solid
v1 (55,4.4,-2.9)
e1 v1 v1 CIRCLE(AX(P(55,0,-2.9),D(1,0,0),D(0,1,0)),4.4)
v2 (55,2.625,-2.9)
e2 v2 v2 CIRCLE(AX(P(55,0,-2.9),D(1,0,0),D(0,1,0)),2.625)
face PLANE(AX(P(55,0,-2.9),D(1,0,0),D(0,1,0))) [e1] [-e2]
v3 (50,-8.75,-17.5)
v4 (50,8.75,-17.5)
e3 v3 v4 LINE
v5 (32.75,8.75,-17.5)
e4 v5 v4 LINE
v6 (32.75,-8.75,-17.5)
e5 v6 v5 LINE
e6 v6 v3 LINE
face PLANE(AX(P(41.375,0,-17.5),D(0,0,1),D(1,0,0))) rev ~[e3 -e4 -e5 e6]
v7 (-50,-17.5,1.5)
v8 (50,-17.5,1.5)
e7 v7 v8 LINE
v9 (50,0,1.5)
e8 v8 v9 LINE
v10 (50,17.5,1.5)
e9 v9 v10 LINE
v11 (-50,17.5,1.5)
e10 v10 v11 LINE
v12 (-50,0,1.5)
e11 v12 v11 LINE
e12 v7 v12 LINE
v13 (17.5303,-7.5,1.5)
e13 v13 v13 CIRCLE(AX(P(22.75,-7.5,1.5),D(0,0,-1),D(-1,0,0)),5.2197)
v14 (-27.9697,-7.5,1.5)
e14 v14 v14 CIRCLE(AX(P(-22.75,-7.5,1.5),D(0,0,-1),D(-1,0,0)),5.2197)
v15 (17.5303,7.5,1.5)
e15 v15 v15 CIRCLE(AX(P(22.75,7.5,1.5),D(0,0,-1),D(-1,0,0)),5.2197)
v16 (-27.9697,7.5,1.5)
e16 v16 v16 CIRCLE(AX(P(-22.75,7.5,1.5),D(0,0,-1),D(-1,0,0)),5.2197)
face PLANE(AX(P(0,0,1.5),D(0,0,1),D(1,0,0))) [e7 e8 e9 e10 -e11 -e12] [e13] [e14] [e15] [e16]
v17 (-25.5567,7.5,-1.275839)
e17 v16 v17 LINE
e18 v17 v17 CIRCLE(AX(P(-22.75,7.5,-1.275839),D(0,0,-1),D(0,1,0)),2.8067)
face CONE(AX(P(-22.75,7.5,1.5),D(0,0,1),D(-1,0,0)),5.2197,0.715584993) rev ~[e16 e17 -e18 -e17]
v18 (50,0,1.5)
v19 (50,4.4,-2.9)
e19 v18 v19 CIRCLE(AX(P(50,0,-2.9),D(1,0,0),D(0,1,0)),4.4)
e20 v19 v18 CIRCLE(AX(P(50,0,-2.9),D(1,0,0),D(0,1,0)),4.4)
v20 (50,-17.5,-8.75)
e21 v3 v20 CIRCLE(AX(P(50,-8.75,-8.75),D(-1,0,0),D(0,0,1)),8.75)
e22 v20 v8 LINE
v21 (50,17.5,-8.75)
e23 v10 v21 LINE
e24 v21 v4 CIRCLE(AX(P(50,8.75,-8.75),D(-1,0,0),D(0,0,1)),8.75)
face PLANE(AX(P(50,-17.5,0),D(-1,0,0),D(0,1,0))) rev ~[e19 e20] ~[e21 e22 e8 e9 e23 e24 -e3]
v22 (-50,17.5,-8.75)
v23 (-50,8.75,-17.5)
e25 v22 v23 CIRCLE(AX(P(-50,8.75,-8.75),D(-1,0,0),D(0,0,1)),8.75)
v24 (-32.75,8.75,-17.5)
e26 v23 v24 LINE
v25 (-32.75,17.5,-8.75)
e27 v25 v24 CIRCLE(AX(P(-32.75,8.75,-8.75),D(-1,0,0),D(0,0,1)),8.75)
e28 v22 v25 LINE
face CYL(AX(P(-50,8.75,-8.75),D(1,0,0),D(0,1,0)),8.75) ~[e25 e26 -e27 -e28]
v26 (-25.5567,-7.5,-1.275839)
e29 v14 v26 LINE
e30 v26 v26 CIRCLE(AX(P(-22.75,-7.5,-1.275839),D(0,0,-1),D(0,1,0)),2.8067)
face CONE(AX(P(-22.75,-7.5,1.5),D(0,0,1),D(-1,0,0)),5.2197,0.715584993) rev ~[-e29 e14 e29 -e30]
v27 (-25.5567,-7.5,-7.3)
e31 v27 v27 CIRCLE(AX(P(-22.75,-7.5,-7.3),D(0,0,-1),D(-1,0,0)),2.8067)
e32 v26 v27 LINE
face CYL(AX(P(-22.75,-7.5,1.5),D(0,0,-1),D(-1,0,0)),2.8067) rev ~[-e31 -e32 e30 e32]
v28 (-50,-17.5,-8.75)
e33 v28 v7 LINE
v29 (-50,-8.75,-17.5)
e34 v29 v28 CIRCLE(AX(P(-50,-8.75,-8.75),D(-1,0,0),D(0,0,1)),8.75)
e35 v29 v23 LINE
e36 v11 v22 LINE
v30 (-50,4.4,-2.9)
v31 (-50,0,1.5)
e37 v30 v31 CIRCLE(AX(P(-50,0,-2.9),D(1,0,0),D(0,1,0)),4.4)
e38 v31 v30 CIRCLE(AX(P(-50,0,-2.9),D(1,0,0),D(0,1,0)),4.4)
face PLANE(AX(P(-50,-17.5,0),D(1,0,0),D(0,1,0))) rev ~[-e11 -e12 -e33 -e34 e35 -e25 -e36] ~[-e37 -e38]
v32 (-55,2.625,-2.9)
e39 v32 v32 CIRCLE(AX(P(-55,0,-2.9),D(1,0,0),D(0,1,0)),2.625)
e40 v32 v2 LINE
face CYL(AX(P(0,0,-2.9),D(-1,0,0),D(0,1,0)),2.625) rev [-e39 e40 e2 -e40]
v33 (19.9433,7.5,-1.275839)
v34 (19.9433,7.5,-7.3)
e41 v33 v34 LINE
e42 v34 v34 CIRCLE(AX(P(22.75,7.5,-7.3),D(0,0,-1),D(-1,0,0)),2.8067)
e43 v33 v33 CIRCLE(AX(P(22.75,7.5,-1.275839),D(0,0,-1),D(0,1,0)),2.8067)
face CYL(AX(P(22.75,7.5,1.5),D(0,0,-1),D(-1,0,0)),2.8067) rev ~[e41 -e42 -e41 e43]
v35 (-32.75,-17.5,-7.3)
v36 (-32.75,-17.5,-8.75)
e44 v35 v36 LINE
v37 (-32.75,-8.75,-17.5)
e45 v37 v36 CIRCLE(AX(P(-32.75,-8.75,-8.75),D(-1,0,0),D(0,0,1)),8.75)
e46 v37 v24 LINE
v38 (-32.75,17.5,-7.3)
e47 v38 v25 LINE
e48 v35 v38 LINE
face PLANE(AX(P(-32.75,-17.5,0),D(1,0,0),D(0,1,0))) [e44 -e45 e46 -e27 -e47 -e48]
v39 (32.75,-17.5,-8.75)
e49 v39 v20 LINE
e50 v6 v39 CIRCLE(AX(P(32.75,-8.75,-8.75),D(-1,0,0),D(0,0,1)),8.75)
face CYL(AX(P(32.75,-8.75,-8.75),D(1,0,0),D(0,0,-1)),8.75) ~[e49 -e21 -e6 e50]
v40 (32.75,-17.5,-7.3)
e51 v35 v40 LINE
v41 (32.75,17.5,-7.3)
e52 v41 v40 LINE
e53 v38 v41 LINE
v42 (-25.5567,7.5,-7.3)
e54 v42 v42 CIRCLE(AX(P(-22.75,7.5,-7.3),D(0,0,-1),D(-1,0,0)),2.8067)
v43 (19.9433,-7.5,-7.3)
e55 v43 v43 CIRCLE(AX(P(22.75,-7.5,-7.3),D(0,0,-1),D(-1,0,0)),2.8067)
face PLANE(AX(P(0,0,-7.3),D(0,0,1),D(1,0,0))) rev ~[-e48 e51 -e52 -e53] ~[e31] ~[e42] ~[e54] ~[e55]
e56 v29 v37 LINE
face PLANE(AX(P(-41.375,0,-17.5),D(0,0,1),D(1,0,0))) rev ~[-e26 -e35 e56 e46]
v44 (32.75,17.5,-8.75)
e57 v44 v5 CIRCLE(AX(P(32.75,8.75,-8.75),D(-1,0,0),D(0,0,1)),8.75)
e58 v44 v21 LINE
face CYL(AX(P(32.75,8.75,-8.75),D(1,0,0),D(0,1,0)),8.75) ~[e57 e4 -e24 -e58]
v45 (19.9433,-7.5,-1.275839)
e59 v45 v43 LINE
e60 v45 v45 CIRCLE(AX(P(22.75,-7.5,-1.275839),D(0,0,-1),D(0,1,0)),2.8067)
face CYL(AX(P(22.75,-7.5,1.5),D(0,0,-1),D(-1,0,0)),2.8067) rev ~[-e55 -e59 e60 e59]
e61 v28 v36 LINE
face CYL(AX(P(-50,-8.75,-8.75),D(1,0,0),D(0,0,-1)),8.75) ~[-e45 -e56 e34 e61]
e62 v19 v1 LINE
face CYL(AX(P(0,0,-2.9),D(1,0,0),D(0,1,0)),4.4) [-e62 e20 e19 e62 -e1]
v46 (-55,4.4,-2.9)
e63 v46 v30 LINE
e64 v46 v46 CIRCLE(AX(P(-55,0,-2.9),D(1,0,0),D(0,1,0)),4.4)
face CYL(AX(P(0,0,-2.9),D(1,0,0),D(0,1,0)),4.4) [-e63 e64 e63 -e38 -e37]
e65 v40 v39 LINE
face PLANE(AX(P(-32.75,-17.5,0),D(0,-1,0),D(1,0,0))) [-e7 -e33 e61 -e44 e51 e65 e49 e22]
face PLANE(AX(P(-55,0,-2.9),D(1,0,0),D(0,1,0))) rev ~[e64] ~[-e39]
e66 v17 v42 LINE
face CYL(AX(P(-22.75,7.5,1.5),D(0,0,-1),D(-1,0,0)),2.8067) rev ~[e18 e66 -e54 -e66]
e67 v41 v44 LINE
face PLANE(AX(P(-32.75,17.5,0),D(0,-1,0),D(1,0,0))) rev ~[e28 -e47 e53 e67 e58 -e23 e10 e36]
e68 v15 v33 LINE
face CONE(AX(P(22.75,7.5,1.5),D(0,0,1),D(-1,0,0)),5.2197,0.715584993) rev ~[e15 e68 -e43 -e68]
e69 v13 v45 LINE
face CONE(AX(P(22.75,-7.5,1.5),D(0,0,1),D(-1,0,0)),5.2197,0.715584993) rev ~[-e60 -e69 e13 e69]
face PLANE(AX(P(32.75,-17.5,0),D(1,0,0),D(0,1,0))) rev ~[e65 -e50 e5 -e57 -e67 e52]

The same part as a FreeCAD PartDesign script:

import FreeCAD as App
import Part
import Sketcher
from FreeCAD import Vector
Q = App.Units.Quantity


def edges_at(feature, points):
    """Names of the edges that pass closest to the given points."""
    edges = feature.Shape.Edges
    near = lambda p: min(range(len(edges)), key=lambda i: edges[i].distToShape(Part.Vertex(*p))[0])
    return sorted({f"Edge{near(p) + 1}" for p in points})

doc = App.newDocument("Part")
params = doc.addObject("Spreadsheet::Sheet", "Params")
for row, (alias, value) in enumerate([
    ("sketch1_width", "100 mm"),
    ("sketch1_height", "35 mm"),
    ("pad1_length", "1.5 mm"),
    ("sketch2_height", "35 mm"),
    ("sketch2_width", "17.25 mm"),
    ("pad2_length", "17.5 mm"),
    ("sketch3_height", "35 mm"),
    ("sketch3_width", "65.5 mm"),
    ("pad3_length", "7.3 mm"),
    ("sketch4_diameter", "8.8 mm"),
    ("sketch4_diameter2", "5.25 mm"),
    ("pad4_length", "110 mm"),
    ("sketch5_diameter", "5.25 mm"),
    ("fillet_radius", "8.75 mm"),
    ("hole_diameter", "5.6134 mm"),
    ("hole_csink_diameter", "10.4394 mm"),
], start=1):
    params.set(f"A{row}", alias)
    params.set(f"B{row}", "=" + value)
    params.setAlias(f"B{row}", alias)

body = doc.addObject("PartDesign::Body", "Body")

# Sketch on XY plane
sketch1 = body.newObject("Sketcher::SketchObject", "Sketch")
sketch1.AttachmentSupport = (doc.getObject("XY_Plane"), [""])
sketch1.MapMode = "FlatFace"
sketch1.addGeometry([
    Part.LineSegment(Vector(-50, 17.5, 0), Vector(-50, -17.5, 0)),
    Part.LineSegment(Vector(-50, -17.5, 0), Vector(50, -17.5, 0)),
    Part.LineSegment(Vector(50, -17.5, 0), Vector(50, 17.5, 0)),
    Part.LineSegment(Vector(50, 17.5, 0), Vector(-50, 17.5, 0)),
], False)
sketch1.addConstraint([
    Sketcher.Constraint("Coincident", 0, 2, 1, 1),
    Sketcher.Constraint("Coincident", 1, 2, 2, 1),
    Sketcher.Constraint("Coincident", 2, 2, 3, 1),
    Sketcher.Constraint("Coincident", 3, 2, 0, 1),
    Sketcher.Constraint("Vertical", 0),
    Sketcher.Constraint("Horizontal", 1),
    Sketcher.Constraint("Vertical", 2),
    Sketcher.Constraint("Horizontal", 3),
    Sketcher.Constraint("Symmetric", 0, 2, 2, 2, -1, 1),
    Sketcher.Constraint("DistanceX", 1, 1, 1, 2, Q("100 mm")),
    Sketcher.Constraint("DistanceY", 0, 2, 0, 1, Q("35 mm")),
])
sketch1.setExpression("Constraints[9]", "Params.sketch1_width")
sketch1.setExpression("Constraints[10]", "Params.sketch1_height")
pad1 = body.newObject("PartDesign::Pad", "Pad")
pad1.Profile = sketch1
pad1.setExpression("Length", "Params.pad1_length")

# Sketch on XY plane
sketch2 = body.newObject("Sketcher::SketchObject", "Sketch001")
sketch2.AttachmentSupport = (doc.getObject("XY_Plane"), [""])
sketch2.MapMode = "FlatFace"
sketch2.addGeometry([
    Part.LineSegment(Vector(-50, 17.5, 0), Vector(-50, -17.5, 0)),  # 0
    Part.LineSegment(Vector(-50, -17.5, 0), Vector(-32.75, -17.5, 0)),  # 1
    Part.LineSegment(Vector(-32.75, -17.5, 0), Vector(-32.75, 17.5, 0)),  # 2
    Part.LineSegment(Vector(-32.75, 17.5, 0), Vector(-50, 17.5, 0)),  # 3
    Part.LineSegment(Vector(32.75, 17.5, 0), Vector(32.75, -17.5, 0)),  # 4
    Part.LineSegment(Vector(32.75, -17.5, 0), Vector(50, -17.5, 0)),  # 5
    Part.LineSegment(Vector(50, -17.5, 0), Vector(50, 17.5, 0)),  # 6
    Part.LineSegment(Vector(50, 17.5, 0), Vector(32.75, 17.5, 0)),  # 7
], False)
sketch2.addConstraint([
    Sketcher.Constraint("Coincident", 0, 2, 1, 1),
    Sketcher.Constraint("Coincident", 1, 2, 2, 1),
    Sketcher.Constraint("Coincident", 2, 2, 3, 1),
    Sketcher.Constraint("Coincident", 3, 2, 0, 1),
    Sketcher.Constraint("Coincident", 4, 2, 5, 1),
    Sketcher.Constraint("Coincident", 5, 2, 6, 1),
    Sketcher.Constraint("Coincident", 6, 2, 7, 1),
    Sketcher.Constraint("Coincident", 7, 2, 4, 1),
    Sketcher.Constraint("Vertical", 0),
    Sketcher.Constraint("Horizontal", 1),
    Sketcher.Constraint("Vertical", 2),
    Sketcher.Constraint("Horizontal", 3),
    Sketcher.Constraint("Vertical", 4),
    Sketcher.Constraint("Horizontal", 5),
    Sketcher.Constraint("Vertical", 6),
    Sketcher.Constraint("Horizontal", 7),
    Sketcher.Constraint("Symmetric", 2, 2, 4, 2, -1, 1),
    Sketcher.Constraint("Symmetric", 0, 2, 6, 2, -1, 1),
    Sketcher.Constraint("Horizontal", 1, 2, 4, 2),
    Sketcher.Constraint("DistanceY", 0, 2, 0, 1, Q("35 mm")),
    Sketcher.Constraint("DistanceX", 0, 2, -1, 1, Q("50 mm")),
    Sketcher.Constraint("DistanceX", 1, 1, 1, 2, Q("17.25 mm")),
])
sketch2.setExpression("Constraints[19]", "Params.sketch2_height")
sketch2.setExpression("Constraints[21]", "Params.sketch2_width")
pad2 = body.newObject("PartDesign::Pad", "Pad001")
pad2.Profile = sketch2
pad2.setExpression("Length", "Params.pad2_length")
pad2.Reversed = True

# Sketch on XY plane
sketch3 = body.newObject("Sketcher::SketchObject", "Sketch002")
sketch3.AttachmentSupport = (doc.getObject("XY_Plane"), [""])
sketch3.MapMode = "FlatFace"
sketch3.addGeometry([
    Part.LineSegment(Vector(-32.75, 17.5, 0), Vector(-32.75, -17.5, 0)),
    Part.LineSegment(Vector(-32.75, -17.5, 0), Vector(32.75, -17.5, 0)),
    Part.LineSegment(Vector(32.75, -17.5, 0), Vector(32.75, 17.5, 0)),
    Part.LineSegment(Vector(32.75, 17.5, 0), Vector(-32.75, 17.5, 0)),
], False)
sketch3.addConstraint([
    Sketcher.Constraint("Coincident", 0, 2, 1, 1),
    Sketcher.Constraint("Coincident", 1, 2, 2, 1),
    Sketcher.Constraint("Coincident", 2, 2, 3, 1),
    Sketcher.Constraint("Coincident", 3, 2, 0, 1),
    Sketcher.Constraint("Vertical", 0),
    Sketcher.Constraint("Horizontal", 1),
    Sketcher.Constraint("Vertical", 2),
    Sketcher.Constraint("Horizontal", 3),
    Sketcher.Constraint("Symmetric", 0, 2, 2, 2, -1, 1),
    Sketcher.Constraint("DistanceY", 0, 2, 0, 1, Q("35 mm")),
    Sketcher.Constraint("DistanceX", 1, 1, 1, 2, Q("65.5 mm")),
])
sketch3.setExpression("Constraints[9]", "Params.sketch3_height")
sketch3.setExpression("Constraints[10]", "Params.sketch3_width")
pad3 = body.newObject("PartDesign::Pad", "Pad002")
pad3.Profile = sketch3
pad3.setExpression("Length", "Params.pad3_length")
pad3.Reversed = True

# Sketch on YZ plane
sketch4 = body.newObject("Sketcher::SketchObject", "Sketch003")
sketch4.AttachmentSupport = (doc.getObject("YZ_Plane"), [""])
sketch4.MapMode = "FlatFace"
sketch4.addGeometry([
    Part.Circle(Vector(0, -2.9, 0), Vector(0, 0, 1), 4.4),
    Part.Circle(Vector(0, -2.9, 0), Vector(0, 0, 1), 2.625),
], False)
sketch4.addConstraint([
    Sketcher.Constraint("Coincident", 1, 3, 0, 3),
    Sketcher.Constraint("PointOnObject", 0, 3, -2),
    Sketcher.Constraint("Diameter", 0, Q("8.8 mm")),
    Sketcher.Constraint("Diameter", 1, Q("5.25 mm")),
    Sketcher.Constraint("DistanceY", 0, 3, -1, 1, Q("2.9 mm")),
])
sketch4.setExpression("Constraints[2]", "Params.sketch4_diameter")
sketch4.setExpression("Constraints[3]", "Params.sketch4_diameter2")
pad4 = body.newObject("PartDesign::Pad", "Pad003")
pad4.Profile = sketch4
pad4.setExpression("Length", "Params.pad4_length")
pad4.Midplane = True

# Sketch on YZ plane
sketch5 = body.newObject("Sketcher::SketchObject", "Sketch004")
sketch5.AttachmentSupport = (doc.getObject("YZ_Plane"), [""])
sketch5.MapMode = "FlatFace"
sketch5.addGeometry(Part.Circle(Vector(0, -2.9, 0), Vector(0, 0, 1), 2.625), False)
sketch5.addConstraint([
    Sketcher.Constraint("PointOnObject", 0, 3, -2),
    Sketcher.Constraint("Diameter", 0, Q("5.25 mm")),
    Sketcher.Constraint("DistanceY", 0, 3, -1, 1, Q("2.9 mm")),
])
sketch5.setExpression("Constraints[1]", "Params.sketch5_diameter")
pocket1 = body.newObject("PartDesign::Pocket", "Pocket")
pocket1.Profile = sketch5
pocket1.Type = "ThroughAll"
pocket1.Midplane = True
doc.recompute()

fillet = body.newObject("PartDesign::Fillet", "Fillet")
fillet.Base = (pocket1, edges_at(pocket1, [
    (41.375, -17.5, -17.5),
    (41.375, 17.5, -17.5),
    (-41.375, -17.5, -17.5),
    (-41.375, 17.5, -17.5),
]))
fillet.setExpression("Radius", "Params.fillet_radius")

# Sketch on XY plane
sketch6 = body.newObject("Sketcher::SketchObject", "Sketch005")
sketch6.AttachmentSupport = (doc.getObject("XY_Plane"), [""])
sketch6.MapMode = "FlatFace"
sketch6.AttachmentOffset = App.Placement(Vector(0, 0, 1.5), App.Rotation())
sketch6.addGeometry([
    Part.Circle(Vector(-22.75, 7.5, 0), Vector(0, 0, 1), 2.8067),
    Part.Circle(Vector(-22.75, -7.5, 0), Vector(0, 0, 1), 2.8067),
    Part.Circle(Vector(22.75, -7.5, 0), Vector(0, 0, 1), 2.8067),
    Part.Circle(Vector(22.75, 7.5, 0), Vector(0, 0, 1), 2.8067),
], False)
sketch6.addConstraint([
    Sketcher.Constraint("Equal", 0, 1),
    Sketcher.Constraint("Equal", 1, 2),
    Sketcher.Constraint("Equal", 2, 3),
    Sketcher.Constraint("Symmetric", 0, 3, 2, 3, -1, 1),
    Sketcher.Constraint("Symmetric", 1, 3, 3, 3, -1, 1),
    Sketcher.Constraint("Symmetric", 1, 3, 2, 3, -2),
    Sketcher.Constraint("DistanceY", 1, 3, 0, 3, Q("15 mm")),
    Sketcher.Constraint("Diameter", 0, Q("5.6134 mm")),
    Sketcher.Constraint("DistanceX", 1, 3, 2, 3, Q("45.5 mm")),
])
doc.recompute()
hole = body.newObject("PartDesign::Hole", "Hole")
hole.Profile = sketch6
hole.ThreadType = "None"
hole.setExpression("Diameter", "Params.hole_diameter")
hole.DepthType = "ThroughAll"
hole.HoleCutType = "Countersink"
hole.setExpression("HoleCutDiameter", "Params.hole_csink_diameter")
hole.HoleCutCountersinkAngle = 82

doc.recompute()
